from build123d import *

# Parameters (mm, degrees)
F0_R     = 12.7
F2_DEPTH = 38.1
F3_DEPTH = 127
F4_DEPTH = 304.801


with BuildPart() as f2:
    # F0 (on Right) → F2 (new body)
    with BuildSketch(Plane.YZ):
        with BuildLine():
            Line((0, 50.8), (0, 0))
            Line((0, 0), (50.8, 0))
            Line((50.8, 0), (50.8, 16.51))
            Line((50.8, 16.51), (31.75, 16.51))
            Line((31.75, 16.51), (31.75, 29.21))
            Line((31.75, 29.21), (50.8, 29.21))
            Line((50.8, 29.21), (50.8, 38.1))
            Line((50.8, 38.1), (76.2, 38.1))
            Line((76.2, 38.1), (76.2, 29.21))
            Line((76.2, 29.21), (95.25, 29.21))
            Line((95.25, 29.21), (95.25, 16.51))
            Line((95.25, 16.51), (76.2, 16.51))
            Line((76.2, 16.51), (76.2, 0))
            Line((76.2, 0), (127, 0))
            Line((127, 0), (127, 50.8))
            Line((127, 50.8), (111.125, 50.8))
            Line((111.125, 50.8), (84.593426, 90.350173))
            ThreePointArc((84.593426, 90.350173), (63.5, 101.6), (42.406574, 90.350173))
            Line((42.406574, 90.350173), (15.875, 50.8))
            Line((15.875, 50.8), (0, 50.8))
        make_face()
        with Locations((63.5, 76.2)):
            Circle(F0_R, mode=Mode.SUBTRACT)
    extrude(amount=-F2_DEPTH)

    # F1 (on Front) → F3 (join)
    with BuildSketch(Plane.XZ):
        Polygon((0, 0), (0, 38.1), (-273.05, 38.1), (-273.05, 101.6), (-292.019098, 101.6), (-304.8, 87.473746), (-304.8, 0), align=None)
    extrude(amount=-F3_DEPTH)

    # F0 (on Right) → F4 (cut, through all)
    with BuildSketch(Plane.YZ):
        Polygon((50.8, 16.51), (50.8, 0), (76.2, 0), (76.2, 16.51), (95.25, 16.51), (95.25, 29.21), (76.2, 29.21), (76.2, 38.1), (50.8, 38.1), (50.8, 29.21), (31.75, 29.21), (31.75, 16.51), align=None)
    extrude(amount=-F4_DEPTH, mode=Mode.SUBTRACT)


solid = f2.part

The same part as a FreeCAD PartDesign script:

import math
import FreeCAD as App
import Part
import Sketcher
Q = App.Units.Quantity

doc = App.newDocument("Part")
body = doc.addObject("PartDesign::Body", "Body")

# Sketch on YZ plane
sketch1 = body.newObject("Sketcher::SketchObject", "Sketch")
sketch1.AttachmentSupport = (doc.getObject("YZ_Plane"), [""])
sketch1.MapMode = "FlatFace"
sketch1.addGeometry([
    Part.LineSegment(App.Vector(0, 50.8, 0), App.Vector(0, 0, 0)),  # 0
    Part.LineSegment(App.Vector(0, 0, 0), App.Vector(50.8, 0, 0)),  # 1
    Part.LineSegment(App.Vector(50.8, 0, 0), App.Vector(50.8, 16.51, 0)),  # 2
    Part.LineSegment(App.Vector(50.8, 16.51, 0), App.Vector(31.75, 16.51, 0)),  # 3
    Part.LineSegment(App.Vector(31.75, 16.51, 0), App.Vector(31.75, 29.21, 0)),  # 4
    Part.LineSegment(App.Vector(31.75, 29.21, 0), App.Vector(50.8, 29.21, 0)),  # 5
    Part.LineSegment(App.Vector(50.8, 29.21, 0), App.Vector(50.8, 38.1, 0)),  # 6
    Part.LineSegment(App.Vector(50.8, 38.1, 0), App.Vector(76.2, 38.1, 0)),  # 7
    Part.LineSegment(App.Vector(76.2, 38.1, 0), App.Vector(76.2, 29.21, 0)),  # 8
    Part.LineSegment(App.Vector(76.2, 29.21, 0), App.Vector(95.25, 29.21, 0)),  # 9
    Part.LineSegment(App.Vector(95.25, 29.21, 0), App.Vector(95.25, 16.51, 0)),  # 10
    Part.LineSegment(App.Vector(95.25, 16.51, 0), App.Vector(76.2, 16.51, 0)),  # 11
    Part.LineSegment(App.Vector(76.2, 16.51, 0), App.Vector(76.2, 0, 0)),  # 12
    Part.LineSegment(App.Vector(76.2, 0, 0), App.Vector(127, 0, 0)),  # 13
    Part.LineSegment(App.Vector(127, 0, 0), App.Vector(127, 50.8, 0)),  # 14
    Part.LineSegment(App.Vector(127, 50.8, 0), App.Vector(111.125, 50.8, 0)),  # 15
    Part.LineSegment(App.Vector(111.125, 50.8, 0), App.Vector(84.593426, 90.350173, 0)),  # 16
    Part.ArcOfCircle(Part.Circle(App.Vector(63.5, 76.199999, 0), App.Vector(0, 0, 1), 25.400001), math.radians(33.855027), math.radians(146.144973)),  # 17
    Part.LineSegment(App.Vector(42.406574, 90.350173, 0), App.Vector(15.875, 50.8, 0)),  # 18
    Part.LineSegment(App.Vector(15.875, 50.8, 0), App.Vector(0, 50.8, 0)),  # 19
    Part.Circle(App.Vector(63.5, 76.2, 0), App.Vector(0, 0, 1), 12.7),  # 20
], False)
sketch1.addConstraint([
    Sketcher.Constraint("Coincident", 0, 2, 1, 1),
    Sketcher.Constraint("Coincident", 1, 2, 2, 1),
    Sketcher.Constraint("Coincident", 2, 2, 3, 1),
    Sketcher.Constraint("Coincident", 3, 2, 4, 1),
    Sketcher.Constraint("Coincident", 4, 2, 5, 1),
    Sketcher.Constraint("Coincident", 5, 2, 6, 1),
    Sketcher.Constraint("Coincident", 6, 2, 7, 1),
    Sketcher.Constraint("Coincident", 7, 2, 8, 1),
    Sketcher.Constraint("Coincident", 8, 2, 9, 1),
    Sketcher.Constraint("Coincident", 9, 2, 10, 1),
    Sketcher.Constraint("Coincident", 10, 2, 11, 1),
    Sketcher.Constraint("Coincident", 11, 2, 12, 1),
    Sketcher.Constraint("Coincident", 12, 2, 13, 1),
    Sketcher.Constraint("Coincident", 13, 2, 14, 1),
    Sketcher.Constraint("Coincident", 14, 2, 15, 1),
    Sketcher.Constraint("Coincident", 15, 2, 16, 1),
    Sketcher.Constraint("Tangent", 16, 2, 17, 1),
    Sketcher.Constraint("Tangent", 17, 2, 18, 1),
    Sketcher.Constraint("Coincident", 18, 2, 19, 1),
    Sketcher.Constraint("Coincident", 19, 2, 0, 1),
    Sketcher.Constraint("Vertical", 0),
    Sketcher.Constraint("Horizontal", 1),
    Sketcher.Constraint("Vertical", 2),
    Sketcher.Constraint("Horizontal", 3),
    Sketcher.Constraint("Vertical", 4),
    Sketcher.Constraint("Horizontal", 5),
    Sketcher.Constraint("Vertical", 6),
    Sketcher.Constraint("Horizontal", 7),
    Sketcher.Constraint("Vertical", 8),
    Sketcher.Constraint("Horizontal", 9),
    Sketcher.Constraint("Vertical", 10),
    Sketcher.Constraint("Horizontal", 11),
    Sketcher.Constraint("Vertical", 12),
    Sketcher.Constraint("Horizontal", 13),
    Sketcher.Constraint("Vertical", 14),
    Sketcher.Constraint("Horizontal", 15),
    Sketcher.Constraint("Horizontal", 19),
    Sketcher.Constraint("Coincident", 0, 2, -1, 1),
    Sketcher.Constraint("Coincident", 20, 3, 17, 3),
    Sketcher.Constraint("PointOnObject", 12, 2, -1),
    Sketcher.Constraint("Horizontal", 5, 2, 8, 2),
    Sketcher.Constraint("Horizontal", 3, 2, 10, 2),
    Sketcher.Constraint("Horizontal", 16, 2, 17, 2),
    Sketcher.Constraint("Horizontal", 15, 2, 18, 2),
    Sketcher.Constraint("Vertical", 2, 2, 5, 2),
    Sketcher.Constraint("Vertical", 8, 2, 11, 2),
    Sketcher.Constraint("Equal", 5, 9),
    Sketcher.Constraint("Equal", 1, 13),
    Sketcher.Constraint("Equal", 15, 19),
    Sketcher.Constraint("Equal", 13, 0),
    Sketcher.Constraint("Diameter", 20, Q("1 in")),
    Sketcher.Constraint("Radius", 17, Q("1 in")),
    Sketcher.Constraint("DistanceX", 1, 1, 1, 2, Q("2 in")),
    Sketcher.Constraint("DistanceX", 7, 1, 7, 2, Q("1 in")),
    Sketcher.Constraint("DistanceY", 4, 1, 4, 2, Q("0.5 in")),
    Sketcher.Constraint("DistanceY", -1, 1, 17, 3, Q("3 in")),
    Sketcher.Constraint("DistanceX", 3, 2, 3, 1, Q("0.75 in")),
    Sketcher.Constraint("DistanceY", 2, 1, 2, 2, Q("0.65 in")),
    Sketcher.Constraint("DistanceY", 6, 1, 6, 2, Q("0.35 in")),
    Sketcher.Constraint("DistanceX", 15, 2, 15, 1, Q("0.625 in")),
])
pad1 = body.newObject("PartDesign::Pad", "Pad")
pad1.Profile = sketch1
pad1.Length = Q("1.5 in")
pad1.Reversed = True

# Sketch on XZ plane
sketch2 = body.newObject("Sketcher::SketchObject", "Sketch001")
sketch2.AttachmentSupport = (doc.getObject("XZ_Plane"), [""])
sketch2.MapMode = "FlatFace"
sketch2.addGeometry([
    Part.LineSegment(App.Vector(0, 0, 0), App.Vector(0, 38.1, 0)),  # 0
    Part.LineSegment(App.Vector(0, 38.1, 0), App.Vector(-273.05, 38.1, 0)),  # 1
    Part.LineSegment(App.Vector(-273.05, 38.1, 0), App.Vector(-273.05, 101.6, 0)),  # 2
    Part.LineSegment(App.Vector(-273.05, 101.6, 0), App.Vector(-292.019098, 101.6, 0)),  # 3
    Part.LineSegment(App.Vector(-292.019098, 101.6, 0), App.Vector(-304.8, 87.473746, 0)),  # 4
    Part.LineSegment(App.Vector(-304.8, 87.473746, 0), App.Vector(-304.8, 0, 0)),  # 5
    Part.LineSegment(App.Vector(-304.8, 0, 0), App.Vector(0, 0, 0)),  # 6
], False)
sketch2.addConstraint([
    Sketcher.Constraint("Coincident", 0, 2, 1, 1),
    Sketcher.Constraint("Coincident", 1, 2, 2, 1),
    Sketcher.Constraint("Coincident", 2, 2, 3, 1),
    Sketcher.Constraint("Coincident", 3, 2, 4, 1),
    Sketcher.Constraint("Coincident", 4, 2, 5, 1),
    Sketcher.Constraint("Coincident", 5, 2, 6, 1),
    Sketcher.Constraint("Coincident", 6, 2, 0, 1),
    Sketcher.Constraint("Vertical", 0),
    Sketcher.Constraint("Horizontal", 1),
    Sketcher.Constraint("Vertical", 2),
    Sketcher.Constraint("Horizontal", 3),
    Sketcher.Constraint("Vertical", 5),
    Sketcher.Constraint("Horizontal", 6),
    Sketcher.Constraint("Coincident", 6, 2, -1, 1),
    Sketcher.Constraint("DistanceX", 6, 1, 6, 2, Q("12 in")),
    Sketcher.Constraint("DistanceY", 0, 1, 0, 2, Q("1.5 in")),
    Sketcher.Constraint("DistanceY", 2, 1, 2, 2, Q("2.5 in")),
    Sketcher.Constraint("DistanceX", 1, 2, 1, 1, Q("10.75 in")),
    Sketcher.Constraint("Distance", 4, Q("0.75 in")),
    Sketcher.Constraint("DistanceX", 3, 2, -1, 1, 292.019098),
])
pad2 = body.newObject("PartDesign::Pad", "Pad001")
pad2.Profile = sketch2
pad2.Length = Q("5 in")
pad2.Reversed = True

# Sketch on YZ plane
sketch3 = body.newObject("Sketcher::SketchObject", "Sketch002")
sketch3.AttachmentSupport = (doc.getObject("YZ_Plane"), [""])
sketch3.MapMode = "FlatFace"
sketch3.addGeometry([
    Part.LineSegment(App.Vector(50.8, 16.51, 0), App.Vector(50.8, 0, 0)),  # 0
    Part.LineSegment(App.Vector(50.8, 0, 0), App.Vector(76.2, 0, 0)),  # 1
    Part.LineSegment(App.Vector(76.2, 0, 0), App.Vector(76.2, 16.51, 0)),  # 2
    Part.LineSegment(App.Vector(76.2, 16.51, 0), App.Vector(95.25, 16.51, 0)),  # 3
    Part.LineSegment(App.Vector(95.25, 16.51, 0), App.Vector(95.25, 29.21, 0)),  # 4
    Part.LineSegment(App.Vector(95.25, 29.21, 0), App.Vector(76.2, 29.21, 0)),  # 5
    Part.LineSegment(App.Vector(76.2, 29.21, 0), App.Vector(76.2, 38.1, 0)),  # 6
    Part.LineSegment(App.Vector(76.2, 38.1, 0), App.Vector(50.8, 38.1, 0)),  # 7
    Part.LineSegment(App.Vector(50.8, 38.1, 0), App.Vector(50.8, 29.21, 0)),  # 8
    Part.LineSegment(App.Vector(50.8, 29.21, 0), App.Vector(31.75, 29.21, 0)),  # 9
    Part.LineSegment(App.Vector(31.75, 29.21, 0), App.Vector(31.75, 16.51, 0)),  # 10
    Part.LineSegment(App.Vector(31.75, 16.51, 0), App.Vector(50.8, 16.51, 0)),  # 11
], False)
sketch3.addConstraint([
    Sketcher.Constraint("Coincident", 0, 2, 1, 1),
    Sketcher.Constraint("Coincident", 1, 2, 2, 1),
    Sketcher.Constraint("Coincident", 2, 2, 3, 1),
    Sketcher.Constraint("Coincident", 3, 2, 4, 1),
    Sketcher.Constraint("Coincident", 4, 2, 5, 1),
    Sketcher.Constraint("Coincident", 5, 2, 6, 1),
    Sketcher.Constraint("Coincident", 6, 2, 7, 1),
    Sketcher.Constraint("Coincident", 7, 2, 8, 1),
    Sketcher.Constraint("Coincident", 8, 2, 9, 1),
    Sketcher.Constraint("Coincident", 9, 2, 10, 1),
    Sketcher.Constraint("Coincident", 10, 2, 11, 1),
    Sketcher.Constraint("Coincident", 11, 2, 0, 1),
    Sketcher.Constraint("Vertical", 0),
    Sketcher.Constraint("Horizontal", 1),
    Sketcher.Constraint("Vertical", 2),
    Sketcher.Constraint("Horizontal", 3),
    Sketcher.Constraint("Vertical", 4),
    Sketcher.Constraint("Horizontal", 5),
    Sketcher.Constraint("Vertical", 6),
    Sketcher.Constraint("Horizontal", 7),
    Sketcher.Constraint("Vertical", 8),
    Sketcher.Constraint("Horizontal", 9),
    Sketcher.Constraint("Vertical", 10),
    Sketcher.Constraint("Horizontal", 11),
    Sketcher.Constraint("PointOnObject", 0, 2, -1),
    Sketcher.Constraint("Horizontal", 5, 2, 8, 2),
    Sketcher.Constraint("Horizontal", 3, 2, 10, 2),
    Sketcher.Constraint("Vertical", 2, 2, 5, 2),
    Sketcher.Constraint("Vertical", 0, 2, 7, 2),
    Sketcher.Constraint("Equal", 5, 9),
    Sketcher.Constraint("DistanceX", 1, 1, 1, 2, Q("1 in")),
    Sketcher.Constraint("DistanceY", 4, 1, 4, 2, Q("0.5 in")),
    Sketcher.Constraint("DistanceX", -1, 1, 0, 2, Q("2 in")),
    Sketcher.Constraint("DistanceX", 3, 1, 3, 2, Q("0.75 in")),
    Sketcher.Constraint("DistanceY", 0, 2, 0, 1, Q("0.65 in")),
    Sketcher.Constraint("DistanceY", 6, 1, 6, 2, Q("0.35 in")),
])
pocket1 = body.newObject("PartDesign::Pocket", "Pocket")
pocket1.Profile = sketch3
pocket1.Type = "ThroughAll"

doc.recompute()
